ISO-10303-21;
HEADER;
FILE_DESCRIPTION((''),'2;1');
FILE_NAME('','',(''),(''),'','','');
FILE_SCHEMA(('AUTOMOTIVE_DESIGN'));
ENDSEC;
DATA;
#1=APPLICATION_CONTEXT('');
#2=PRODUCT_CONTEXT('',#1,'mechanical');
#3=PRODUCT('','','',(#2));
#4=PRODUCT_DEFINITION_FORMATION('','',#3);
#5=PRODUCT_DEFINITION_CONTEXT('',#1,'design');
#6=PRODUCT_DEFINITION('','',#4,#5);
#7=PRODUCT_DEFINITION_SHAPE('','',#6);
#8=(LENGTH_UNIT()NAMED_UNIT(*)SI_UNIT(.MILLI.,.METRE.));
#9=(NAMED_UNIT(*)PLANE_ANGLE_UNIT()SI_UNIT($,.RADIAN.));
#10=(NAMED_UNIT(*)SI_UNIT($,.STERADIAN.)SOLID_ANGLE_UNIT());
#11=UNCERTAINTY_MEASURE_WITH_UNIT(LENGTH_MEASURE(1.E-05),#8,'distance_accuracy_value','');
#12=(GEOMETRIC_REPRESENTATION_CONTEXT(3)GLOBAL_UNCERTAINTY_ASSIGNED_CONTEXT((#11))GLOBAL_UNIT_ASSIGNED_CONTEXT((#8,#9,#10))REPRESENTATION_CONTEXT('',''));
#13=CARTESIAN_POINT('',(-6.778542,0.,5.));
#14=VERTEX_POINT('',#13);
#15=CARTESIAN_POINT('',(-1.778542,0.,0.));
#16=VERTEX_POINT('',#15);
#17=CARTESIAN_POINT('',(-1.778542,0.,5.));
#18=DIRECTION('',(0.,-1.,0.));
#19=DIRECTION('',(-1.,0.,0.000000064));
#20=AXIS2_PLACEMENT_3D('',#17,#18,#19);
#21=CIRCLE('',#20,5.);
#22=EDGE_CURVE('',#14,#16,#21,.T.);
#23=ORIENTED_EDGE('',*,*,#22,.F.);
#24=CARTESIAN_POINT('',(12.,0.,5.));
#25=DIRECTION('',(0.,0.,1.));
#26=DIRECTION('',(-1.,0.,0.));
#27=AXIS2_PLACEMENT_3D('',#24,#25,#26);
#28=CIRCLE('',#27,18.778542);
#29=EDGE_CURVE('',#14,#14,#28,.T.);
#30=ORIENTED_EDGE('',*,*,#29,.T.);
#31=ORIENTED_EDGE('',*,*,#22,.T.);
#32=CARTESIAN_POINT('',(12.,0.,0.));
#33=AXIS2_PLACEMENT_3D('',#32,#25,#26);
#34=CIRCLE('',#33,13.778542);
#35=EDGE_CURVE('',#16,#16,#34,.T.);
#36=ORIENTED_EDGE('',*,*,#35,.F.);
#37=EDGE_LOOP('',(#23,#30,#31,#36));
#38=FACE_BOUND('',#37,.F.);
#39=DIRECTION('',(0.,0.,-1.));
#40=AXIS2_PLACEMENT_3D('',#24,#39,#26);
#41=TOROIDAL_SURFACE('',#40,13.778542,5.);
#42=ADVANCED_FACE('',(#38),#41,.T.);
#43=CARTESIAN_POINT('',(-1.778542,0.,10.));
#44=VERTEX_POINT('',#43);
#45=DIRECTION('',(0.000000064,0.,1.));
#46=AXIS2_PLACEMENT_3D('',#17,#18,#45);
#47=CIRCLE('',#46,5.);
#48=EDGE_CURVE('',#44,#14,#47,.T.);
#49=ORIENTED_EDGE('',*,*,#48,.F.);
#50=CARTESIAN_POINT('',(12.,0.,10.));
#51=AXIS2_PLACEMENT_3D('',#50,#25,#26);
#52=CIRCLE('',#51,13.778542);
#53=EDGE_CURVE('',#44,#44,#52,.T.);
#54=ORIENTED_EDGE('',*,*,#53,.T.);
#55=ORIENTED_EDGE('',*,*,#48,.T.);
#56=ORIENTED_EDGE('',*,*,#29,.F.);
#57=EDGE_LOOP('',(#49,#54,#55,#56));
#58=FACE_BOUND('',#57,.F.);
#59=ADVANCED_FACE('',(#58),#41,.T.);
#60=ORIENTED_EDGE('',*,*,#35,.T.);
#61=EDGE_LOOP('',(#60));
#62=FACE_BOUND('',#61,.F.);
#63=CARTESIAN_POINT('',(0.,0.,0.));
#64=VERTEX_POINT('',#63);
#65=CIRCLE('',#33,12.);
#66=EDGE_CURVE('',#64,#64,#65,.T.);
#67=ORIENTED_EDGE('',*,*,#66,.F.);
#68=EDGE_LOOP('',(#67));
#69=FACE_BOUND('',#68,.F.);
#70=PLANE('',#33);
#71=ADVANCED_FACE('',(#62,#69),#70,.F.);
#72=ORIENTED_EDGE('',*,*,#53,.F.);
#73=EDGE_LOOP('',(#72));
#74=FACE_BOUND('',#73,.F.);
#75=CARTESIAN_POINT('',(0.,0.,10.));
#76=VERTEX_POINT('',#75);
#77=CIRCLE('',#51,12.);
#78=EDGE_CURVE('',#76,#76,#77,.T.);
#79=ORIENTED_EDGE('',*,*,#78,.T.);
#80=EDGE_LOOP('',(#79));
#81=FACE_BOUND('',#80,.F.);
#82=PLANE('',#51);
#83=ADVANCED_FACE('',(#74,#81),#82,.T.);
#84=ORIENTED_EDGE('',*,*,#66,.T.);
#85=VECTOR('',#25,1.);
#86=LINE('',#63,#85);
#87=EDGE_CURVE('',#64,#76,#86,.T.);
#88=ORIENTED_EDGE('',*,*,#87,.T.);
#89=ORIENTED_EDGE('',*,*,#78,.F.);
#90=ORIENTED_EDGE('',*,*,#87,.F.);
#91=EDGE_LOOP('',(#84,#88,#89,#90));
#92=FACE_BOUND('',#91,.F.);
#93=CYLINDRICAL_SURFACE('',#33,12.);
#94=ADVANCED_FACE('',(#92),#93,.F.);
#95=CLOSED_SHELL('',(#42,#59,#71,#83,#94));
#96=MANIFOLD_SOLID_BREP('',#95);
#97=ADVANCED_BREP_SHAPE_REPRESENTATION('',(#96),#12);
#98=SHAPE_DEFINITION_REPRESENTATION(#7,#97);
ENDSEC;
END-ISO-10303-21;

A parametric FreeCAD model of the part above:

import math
import FreeCAD as App
import Part
import Sketcher

doc = App.newDocument("Part")
body = doc.addObject("PartDesign::Body", "Body")

# Sketch on XZ plane
sketch1 = body.newObject("Sketcher::SketchObject", "Sketch")
sketch1.AttachmentSupport = (doc.getObject("XZ_Plane"), [""])
sketch1.MapMode = "FlatFace"
sketch1.addGeometry(Part.LineSegment(App.Vector(-1.778542, 0, 0), App.Vector(0, 0, 0)), False)
sketch1.addGeometry(Part.LineSegment(App.Vector(0, 0, 0), App.Vector(0, 10, 0)), False)
sketch1.addGeometry(Part.LineSegment(App.Vector(0, 10, 0), App.Vector(-1.778542, 10, 0)), False)
sketch1.addGeometry(Part.ArcOfCircle(Part.Circle(App.Vector(-1.778542, 5, 0), App.Vector(0, 0, 1), 5), math.radians(89.999996), math.radians(180.000004)), False)
sketch1.addGeometry(Part.ArcOfCircle(Part.Circle(App.Vector(-1.778542, 5, 0), App.Vector(0, 0, 1), 5), math.radians(179.999996), math.radians(270.000004)), False)
sketch1.addGeometry(Part.LineSegment(App.Vector(12, 0, 0), App.Vector(12, 10, 0)), True)  # axis
sketch1.addConstraint(Sketcher.Constraint("Coincident", 0, 2, 1, 1))
sketch1.addConstraint(Sketcher.Constraint("Coincident", 1, 2, 2, 1))
sketch1.addConstraint(Sketcher.Constraint("Tangent", 2, 2, 3, 1))
sketch1.addConstraint(Sketcher.Constraint("Tangent", 3, 2, 4, 1))
sketch1.addConstraint(Sketcher.Constraint("Tangent", 4, 2, 0, 1))
sketch1.addConstraint(Sketcher.Constraint("Horizontal", 0))
sketch1.addConstraint(Sketcher.Constraint("Vertical", 1))
sketch1.addConstraint(Sketcher.Constraint("Horizontal", 2))
sketch1.addConstraint(Sketcher.Constraint("Vertical", 5))
sketch1.addConstraint(Sketcher.Constraint("Coincident", 0, 2, -1, 1))
sketch1.addConstraint(Sketcher.Constraint("Equal", 3, 4))
sketch1.addConstraint(Sketcher.Constraint("PointOnObject", 5, 1, -1))
sketch1.addConstraint(Sketcher.Constraint("Horizontal", 4, 3, 3, 2))
sketch1.addConstraint(Sketcher.Constraint("Horizontal", 2, 2, 5, 2))
sketch1.addConstraint(Sketcher.Constraint("Radius", 3, 5.0))
sketch1.addConstraint(Sketcher.Constraint("DistanceX", -1, 1, 5, 1, 12.0))
sketch1.addConstraint(Sketcher.Constraint("DistanceX", 0, 1, 0, 2, 1.778542))
revolution = body.newObject("PartDesign::Revolution", "Revolution")
revolution.Profile = sketch1
revolution.ReferenceAxis = (sketch1, ["Axis0"])
revolution.Angle = 360

doc.recompute()
